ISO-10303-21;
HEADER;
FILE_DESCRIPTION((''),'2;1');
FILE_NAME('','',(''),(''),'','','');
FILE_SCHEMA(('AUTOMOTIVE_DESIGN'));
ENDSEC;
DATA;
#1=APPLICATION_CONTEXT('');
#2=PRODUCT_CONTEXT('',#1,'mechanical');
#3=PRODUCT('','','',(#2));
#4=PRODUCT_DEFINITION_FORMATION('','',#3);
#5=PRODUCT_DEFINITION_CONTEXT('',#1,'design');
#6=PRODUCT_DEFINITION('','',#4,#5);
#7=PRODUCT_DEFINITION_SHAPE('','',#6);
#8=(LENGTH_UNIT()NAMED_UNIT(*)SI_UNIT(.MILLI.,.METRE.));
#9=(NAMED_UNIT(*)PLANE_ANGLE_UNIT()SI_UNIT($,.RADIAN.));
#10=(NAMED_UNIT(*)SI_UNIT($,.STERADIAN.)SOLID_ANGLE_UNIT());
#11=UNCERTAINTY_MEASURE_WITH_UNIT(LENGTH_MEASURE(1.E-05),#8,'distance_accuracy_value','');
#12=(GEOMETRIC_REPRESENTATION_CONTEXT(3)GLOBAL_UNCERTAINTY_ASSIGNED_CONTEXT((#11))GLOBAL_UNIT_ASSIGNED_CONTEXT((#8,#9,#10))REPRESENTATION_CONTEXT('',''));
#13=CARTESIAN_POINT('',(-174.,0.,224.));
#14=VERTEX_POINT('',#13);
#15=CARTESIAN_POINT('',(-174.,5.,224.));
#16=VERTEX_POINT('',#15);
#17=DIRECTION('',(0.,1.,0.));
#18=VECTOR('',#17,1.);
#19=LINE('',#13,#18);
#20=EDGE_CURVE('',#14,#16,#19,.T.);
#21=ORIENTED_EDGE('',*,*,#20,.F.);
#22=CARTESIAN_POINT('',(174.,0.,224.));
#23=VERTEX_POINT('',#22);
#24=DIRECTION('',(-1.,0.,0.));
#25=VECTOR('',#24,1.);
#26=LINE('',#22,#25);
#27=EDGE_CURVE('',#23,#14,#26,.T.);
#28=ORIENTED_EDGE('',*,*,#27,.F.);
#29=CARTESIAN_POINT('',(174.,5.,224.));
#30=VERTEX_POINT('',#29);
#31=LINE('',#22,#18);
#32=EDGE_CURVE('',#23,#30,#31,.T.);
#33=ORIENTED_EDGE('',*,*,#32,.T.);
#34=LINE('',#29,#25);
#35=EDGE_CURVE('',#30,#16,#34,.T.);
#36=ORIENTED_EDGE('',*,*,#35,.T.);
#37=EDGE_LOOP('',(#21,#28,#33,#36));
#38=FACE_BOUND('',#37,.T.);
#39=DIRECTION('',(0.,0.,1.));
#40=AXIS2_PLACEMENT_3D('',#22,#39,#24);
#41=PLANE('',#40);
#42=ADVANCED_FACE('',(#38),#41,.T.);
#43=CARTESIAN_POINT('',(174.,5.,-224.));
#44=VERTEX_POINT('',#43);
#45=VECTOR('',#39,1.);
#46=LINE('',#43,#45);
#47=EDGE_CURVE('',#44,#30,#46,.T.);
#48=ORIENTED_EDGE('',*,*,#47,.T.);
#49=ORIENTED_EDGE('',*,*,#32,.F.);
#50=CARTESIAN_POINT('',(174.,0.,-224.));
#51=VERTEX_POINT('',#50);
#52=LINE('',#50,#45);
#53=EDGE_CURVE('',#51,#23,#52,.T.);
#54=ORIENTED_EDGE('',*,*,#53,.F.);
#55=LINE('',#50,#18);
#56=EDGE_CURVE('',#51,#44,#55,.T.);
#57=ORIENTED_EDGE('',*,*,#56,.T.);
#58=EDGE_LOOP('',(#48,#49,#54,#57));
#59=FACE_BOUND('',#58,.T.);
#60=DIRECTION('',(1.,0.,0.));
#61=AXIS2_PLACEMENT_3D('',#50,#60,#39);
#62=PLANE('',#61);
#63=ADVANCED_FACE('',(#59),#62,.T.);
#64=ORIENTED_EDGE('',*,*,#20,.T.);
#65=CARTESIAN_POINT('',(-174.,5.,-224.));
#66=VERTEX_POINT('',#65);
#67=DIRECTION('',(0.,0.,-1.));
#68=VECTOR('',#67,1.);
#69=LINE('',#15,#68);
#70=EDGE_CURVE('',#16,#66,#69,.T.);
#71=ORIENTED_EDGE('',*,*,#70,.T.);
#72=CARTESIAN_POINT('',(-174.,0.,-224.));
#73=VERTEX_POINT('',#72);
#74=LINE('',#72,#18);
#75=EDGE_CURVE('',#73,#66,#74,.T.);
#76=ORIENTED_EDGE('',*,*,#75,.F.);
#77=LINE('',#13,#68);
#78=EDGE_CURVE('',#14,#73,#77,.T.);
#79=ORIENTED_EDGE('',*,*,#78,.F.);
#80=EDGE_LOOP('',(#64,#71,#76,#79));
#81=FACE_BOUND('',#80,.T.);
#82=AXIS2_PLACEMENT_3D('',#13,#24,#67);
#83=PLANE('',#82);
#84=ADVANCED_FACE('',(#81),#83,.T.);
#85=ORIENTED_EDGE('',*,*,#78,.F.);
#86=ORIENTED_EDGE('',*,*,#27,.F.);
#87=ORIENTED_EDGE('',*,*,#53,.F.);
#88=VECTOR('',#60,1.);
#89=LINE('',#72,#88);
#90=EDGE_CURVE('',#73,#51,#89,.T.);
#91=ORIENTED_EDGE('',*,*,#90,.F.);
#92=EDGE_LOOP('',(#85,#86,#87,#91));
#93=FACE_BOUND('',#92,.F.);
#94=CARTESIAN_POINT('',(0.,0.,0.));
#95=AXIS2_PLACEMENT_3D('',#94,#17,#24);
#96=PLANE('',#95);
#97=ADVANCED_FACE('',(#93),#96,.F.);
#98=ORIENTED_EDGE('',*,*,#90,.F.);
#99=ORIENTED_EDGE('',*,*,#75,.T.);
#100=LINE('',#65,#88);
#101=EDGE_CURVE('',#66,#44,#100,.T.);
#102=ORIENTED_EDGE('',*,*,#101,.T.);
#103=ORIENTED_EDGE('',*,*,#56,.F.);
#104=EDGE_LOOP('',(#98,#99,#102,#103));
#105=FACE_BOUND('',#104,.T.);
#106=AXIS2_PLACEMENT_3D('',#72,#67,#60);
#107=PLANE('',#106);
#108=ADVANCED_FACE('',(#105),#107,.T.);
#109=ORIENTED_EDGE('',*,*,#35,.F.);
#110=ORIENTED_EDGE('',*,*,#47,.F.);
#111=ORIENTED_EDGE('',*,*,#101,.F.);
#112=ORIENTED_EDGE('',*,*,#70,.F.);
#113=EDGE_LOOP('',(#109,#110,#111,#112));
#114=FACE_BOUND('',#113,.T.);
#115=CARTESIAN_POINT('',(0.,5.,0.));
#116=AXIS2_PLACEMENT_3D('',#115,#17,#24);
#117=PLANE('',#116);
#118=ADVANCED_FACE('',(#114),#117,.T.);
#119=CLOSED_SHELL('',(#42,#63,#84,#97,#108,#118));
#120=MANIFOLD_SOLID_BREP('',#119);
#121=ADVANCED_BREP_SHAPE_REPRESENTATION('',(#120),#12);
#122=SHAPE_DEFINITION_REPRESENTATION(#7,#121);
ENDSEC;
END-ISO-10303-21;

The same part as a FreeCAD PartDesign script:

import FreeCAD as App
import Part
import Sketcher

V = App.Vector

doc = App.newDocument("Part")
body = doc.addObject("PartDesign::Body", "Body")

sketch1 = body.newObject("Sketcher::SketchObject", "Sketch")
sketch1.AttachmentSupport = (doc.getObject("XZ_Plane"), [""])
sketch1.MapMode = "FlatFace"
sketch1.addGeometry([
    Part.LineSegment(V(-174, 224, 0), V(174, 224, 0)),
    Part.LineSegment(V(174, 224, 0), V(174, -224, 0)),
    Part.LineSegment(V(174, -224, 0), V(-174, -224, 0)),
    Part.LineSegment(V(-174, -224, 0), V(-174, 224, 0)),
], False)
sketch1.addConstraint([
    Sketcher.Constraint("Coincident", 0, 2, 1, 1),
    Sketcher.Constraint("Coincident", 1, 2, 2, 1),
    Sketcher.Constraint("Coincident", 2, 2, 3, 1),
    Sketcher.Constraint("Coincident", 3, 2, 0, 1),
    Sketcher.Constraint("Horizontal", 0),
    Sketcher.Constraint("Vertical", 1),
    Sketcher.Constraint("Horizontal", 2),
    Sketcher.Constraint("Vertical", 3),
    Sketcher.Constraint("Symmetric", 0, 2, 2, 2, -1, 1),
    Sketcher.Constraint("DistanceX", 0, 1, 0, 2, 348.0),
    Sketcher.Constraint("DistanceY", 1, 2, 1, 1, 448.0),
])
pad1 = body.newObject("PartDesign::Pad", "Pad")
pad1.Profile = sketch1
pad1.Length = 5
pad1.Reversed = True

doc.recompute()
